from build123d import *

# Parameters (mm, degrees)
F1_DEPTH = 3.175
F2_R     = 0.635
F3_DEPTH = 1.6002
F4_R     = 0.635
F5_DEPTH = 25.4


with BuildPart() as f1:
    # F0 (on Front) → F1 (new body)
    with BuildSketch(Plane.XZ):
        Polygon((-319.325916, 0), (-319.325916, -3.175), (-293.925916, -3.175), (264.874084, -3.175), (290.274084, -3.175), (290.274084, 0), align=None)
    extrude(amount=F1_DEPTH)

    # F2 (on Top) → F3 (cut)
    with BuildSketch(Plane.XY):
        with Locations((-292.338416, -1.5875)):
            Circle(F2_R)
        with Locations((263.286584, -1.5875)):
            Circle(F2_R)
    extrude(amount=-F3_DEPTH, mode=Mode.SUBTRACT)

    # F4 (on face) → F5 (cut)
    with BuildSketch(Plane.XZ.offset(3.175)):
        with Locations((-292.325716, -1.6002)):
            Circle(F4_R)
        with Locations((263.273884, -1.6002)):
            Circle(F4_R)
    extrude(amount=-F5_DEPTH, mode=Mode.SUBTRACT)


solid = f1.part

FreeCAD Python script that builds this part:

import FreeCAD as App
import Part
import Sketcher
Q = App.Units.Quantity

doc = App.newDocument("Part")
params = doc.addObject("Spreadsheet::Sheet", "Params")
for row, (alias, value) in enumerate([
    ("sketch1_width", "24 in"),
    ("sketch1_height", "0.125 in"),
    ("pad1_length", "0.125 in"),
    ("sketch2_diameter", "0.05 in"),
    ("pocket1_length", "0.063 in"),
    ("sketch3_diameter", "0.05 in"),
    ("pocket2_length", "1 in"),
], start=1):
    params.set(f"A{row}", alias)
    params.set(f"B{row}", "=" + value)
    params.setAlias(f"B{row}", alias)

body = doc.addObject("PartDesign::Body", "Body")

sketch1 = body.newObject("Sketcher::SketchObject", "Sketch")
sketch1.AttachmentSupport = (doc.getObject("XZ_Plane"), [""])
sketch1.MapMode = "FlatFace"
sketch1.addGeometry([
    Part.LineSegment(App.Vector(-319.325916, 0, 0), App.Vector(-319.325916, -3.175, 0)),
    Part.LineSegment(App.Vector(-319.325916, -3.175, 0), App.Vector(290.274084, -3.175, 0)),
    Part.LineSegment(App.Vector(290.274084, -3.175, 0), App.Vector(290.274084, 0, 0)),
    Part.LineSegment(App.Vector(290.274084, 0, 0), App.Vector(-319.325916, 0, 0)),
], False)
sketch1.addConstraint([
    Sketcher.Constraint("Coincident", 0, 2, 1, 1),
    Sketcher.Constraint("Coincident", 1, 2, 2, 1),
    Sketcher.Constraint("Coincident", 2, 2, 3, 1),
    Sketcher.Constraint("Coincident", 3, 2, 0, 1),
    Sketcher.Constraint("Vertical", 0),
    Sketcher.Constraint("Horizontal", 1),
    Sketcher.Constraint("Vertical", 2),
    Sketcher.Constraint("Horizontal", 3),
    Sketcher.Constraint("PointOnObject", 2, 2, -1),
    Sketcher.Constraint("DistanceX", 1, 1, 1, 2, Q("24 in")),
    Sketcher.Constraint("DistanceY", 0, 2, 0, 1, Q("0.125 in")),
    Sketcher.Constraint("DistanceX", 0, 2, -1, 1, 319.325916),
])
sketch1.setExpression("Constraints[9]", "Params.sketch1_width")
sketch1.setExpression("Constraints[10]", "Params.sketch1_height")
pad1 = body.newObject("PartDesign::Pad", "Pad")
pad1.Profile = sketch1
pad1.setExpression("Length", "Params.pad1_length")

sketch2 = body.newObject("Sketcher::SketchObject", "Sketch001")
sketch2.AttachmentSupport = (doc.getObject("XY_Plane"), [""])
sketch2.MapMode = "FlatFace"
sketch2.addGeometry([
    Part.Circle(App.Vector(-292.338416, -1.5875, 0), App.Vector(0, 0, 1), 0.635),
    Part.Circle(App.Vector(263.286584, -1.5875, 0), App.Vector(0, 0, 1), 0.635),
], False)
sketch2.addConstraint([
    Sketcher.Constraint("Equal", 0, 1),
    Sketcher.Constraint("Horizontal", 0, 3, 1, 3),
    Sketcher.Constraint("Diameter", 0, Q("0.05 in")),
    Sketcher.Constraint("DistanceY", 0, 3, -1, 1, Q("0.0625 in")),
    Sketcher.Constraint("DistanceX", 0, 3, 1, 3, Q("21.875 in")),
    Sketcher.Constraint("DistanceX", 0, 3, -1, 1, 292.338416),
])
sketch2.setExpression("Constraints[2]", "Params.sketch2_diameter")
pocket1 = body.newObject("PartDesign::Pocket", "Pocket")
pocket1.Profile = sketch2
pocket1.setExpression("Length", "Params.pocket1_length")

sketch3 = body.newObject("Sketcher::SketchObject", "Sketch002")
sketch3.AttachmentSupport = (doc.getObject("XZ_Plane"), [""])
sketch3.MapMode = "FlatFace"
sketch3.AttachmentOffset = App.Placement(App.Vector(0, 0, 0.125 * 25.4), App.Rotation())
sketch3.addGeometry([
    Part.Circle(App.Vector(-292.325716, -1.6002, 0), App.Vector(0, 0, 1), 0.635),
    Part.Circle(App.Vector(263.273884, -1.6002, 0), App.Vector(0, 0, 1), 0.635),
], False)
sketch3.addConstraint([
    Sketcher.Constraint("Equal", 0, 1),
    Sketcher.Constraint("Horizontal", 0, 3, 1, 3),
    Sketcher.Constraint("Diameter", 0, Q("0.05 in")),
    Sketcher.Constraint("DistanceY", 0, 3, -1, 1, Q("0.063 in")),
    Sketcher.Constraint("DistanceX", 0, 3, 1, 3, Q("21.874 in")),
    Sketcher.Constraint("DistanceX", 0, 3, -1, 1, 292.325716),
])
sketch3.setExpression("Constraints[2]", "Params.sketch3_diameter")
pocket2 = body.newObject("PartDesign::Pocket", "Pocket001")
pocket2.Profile = sketch3
pocket2.setExpression("Length", "Params.pocket2_length")

doc.recompute()
